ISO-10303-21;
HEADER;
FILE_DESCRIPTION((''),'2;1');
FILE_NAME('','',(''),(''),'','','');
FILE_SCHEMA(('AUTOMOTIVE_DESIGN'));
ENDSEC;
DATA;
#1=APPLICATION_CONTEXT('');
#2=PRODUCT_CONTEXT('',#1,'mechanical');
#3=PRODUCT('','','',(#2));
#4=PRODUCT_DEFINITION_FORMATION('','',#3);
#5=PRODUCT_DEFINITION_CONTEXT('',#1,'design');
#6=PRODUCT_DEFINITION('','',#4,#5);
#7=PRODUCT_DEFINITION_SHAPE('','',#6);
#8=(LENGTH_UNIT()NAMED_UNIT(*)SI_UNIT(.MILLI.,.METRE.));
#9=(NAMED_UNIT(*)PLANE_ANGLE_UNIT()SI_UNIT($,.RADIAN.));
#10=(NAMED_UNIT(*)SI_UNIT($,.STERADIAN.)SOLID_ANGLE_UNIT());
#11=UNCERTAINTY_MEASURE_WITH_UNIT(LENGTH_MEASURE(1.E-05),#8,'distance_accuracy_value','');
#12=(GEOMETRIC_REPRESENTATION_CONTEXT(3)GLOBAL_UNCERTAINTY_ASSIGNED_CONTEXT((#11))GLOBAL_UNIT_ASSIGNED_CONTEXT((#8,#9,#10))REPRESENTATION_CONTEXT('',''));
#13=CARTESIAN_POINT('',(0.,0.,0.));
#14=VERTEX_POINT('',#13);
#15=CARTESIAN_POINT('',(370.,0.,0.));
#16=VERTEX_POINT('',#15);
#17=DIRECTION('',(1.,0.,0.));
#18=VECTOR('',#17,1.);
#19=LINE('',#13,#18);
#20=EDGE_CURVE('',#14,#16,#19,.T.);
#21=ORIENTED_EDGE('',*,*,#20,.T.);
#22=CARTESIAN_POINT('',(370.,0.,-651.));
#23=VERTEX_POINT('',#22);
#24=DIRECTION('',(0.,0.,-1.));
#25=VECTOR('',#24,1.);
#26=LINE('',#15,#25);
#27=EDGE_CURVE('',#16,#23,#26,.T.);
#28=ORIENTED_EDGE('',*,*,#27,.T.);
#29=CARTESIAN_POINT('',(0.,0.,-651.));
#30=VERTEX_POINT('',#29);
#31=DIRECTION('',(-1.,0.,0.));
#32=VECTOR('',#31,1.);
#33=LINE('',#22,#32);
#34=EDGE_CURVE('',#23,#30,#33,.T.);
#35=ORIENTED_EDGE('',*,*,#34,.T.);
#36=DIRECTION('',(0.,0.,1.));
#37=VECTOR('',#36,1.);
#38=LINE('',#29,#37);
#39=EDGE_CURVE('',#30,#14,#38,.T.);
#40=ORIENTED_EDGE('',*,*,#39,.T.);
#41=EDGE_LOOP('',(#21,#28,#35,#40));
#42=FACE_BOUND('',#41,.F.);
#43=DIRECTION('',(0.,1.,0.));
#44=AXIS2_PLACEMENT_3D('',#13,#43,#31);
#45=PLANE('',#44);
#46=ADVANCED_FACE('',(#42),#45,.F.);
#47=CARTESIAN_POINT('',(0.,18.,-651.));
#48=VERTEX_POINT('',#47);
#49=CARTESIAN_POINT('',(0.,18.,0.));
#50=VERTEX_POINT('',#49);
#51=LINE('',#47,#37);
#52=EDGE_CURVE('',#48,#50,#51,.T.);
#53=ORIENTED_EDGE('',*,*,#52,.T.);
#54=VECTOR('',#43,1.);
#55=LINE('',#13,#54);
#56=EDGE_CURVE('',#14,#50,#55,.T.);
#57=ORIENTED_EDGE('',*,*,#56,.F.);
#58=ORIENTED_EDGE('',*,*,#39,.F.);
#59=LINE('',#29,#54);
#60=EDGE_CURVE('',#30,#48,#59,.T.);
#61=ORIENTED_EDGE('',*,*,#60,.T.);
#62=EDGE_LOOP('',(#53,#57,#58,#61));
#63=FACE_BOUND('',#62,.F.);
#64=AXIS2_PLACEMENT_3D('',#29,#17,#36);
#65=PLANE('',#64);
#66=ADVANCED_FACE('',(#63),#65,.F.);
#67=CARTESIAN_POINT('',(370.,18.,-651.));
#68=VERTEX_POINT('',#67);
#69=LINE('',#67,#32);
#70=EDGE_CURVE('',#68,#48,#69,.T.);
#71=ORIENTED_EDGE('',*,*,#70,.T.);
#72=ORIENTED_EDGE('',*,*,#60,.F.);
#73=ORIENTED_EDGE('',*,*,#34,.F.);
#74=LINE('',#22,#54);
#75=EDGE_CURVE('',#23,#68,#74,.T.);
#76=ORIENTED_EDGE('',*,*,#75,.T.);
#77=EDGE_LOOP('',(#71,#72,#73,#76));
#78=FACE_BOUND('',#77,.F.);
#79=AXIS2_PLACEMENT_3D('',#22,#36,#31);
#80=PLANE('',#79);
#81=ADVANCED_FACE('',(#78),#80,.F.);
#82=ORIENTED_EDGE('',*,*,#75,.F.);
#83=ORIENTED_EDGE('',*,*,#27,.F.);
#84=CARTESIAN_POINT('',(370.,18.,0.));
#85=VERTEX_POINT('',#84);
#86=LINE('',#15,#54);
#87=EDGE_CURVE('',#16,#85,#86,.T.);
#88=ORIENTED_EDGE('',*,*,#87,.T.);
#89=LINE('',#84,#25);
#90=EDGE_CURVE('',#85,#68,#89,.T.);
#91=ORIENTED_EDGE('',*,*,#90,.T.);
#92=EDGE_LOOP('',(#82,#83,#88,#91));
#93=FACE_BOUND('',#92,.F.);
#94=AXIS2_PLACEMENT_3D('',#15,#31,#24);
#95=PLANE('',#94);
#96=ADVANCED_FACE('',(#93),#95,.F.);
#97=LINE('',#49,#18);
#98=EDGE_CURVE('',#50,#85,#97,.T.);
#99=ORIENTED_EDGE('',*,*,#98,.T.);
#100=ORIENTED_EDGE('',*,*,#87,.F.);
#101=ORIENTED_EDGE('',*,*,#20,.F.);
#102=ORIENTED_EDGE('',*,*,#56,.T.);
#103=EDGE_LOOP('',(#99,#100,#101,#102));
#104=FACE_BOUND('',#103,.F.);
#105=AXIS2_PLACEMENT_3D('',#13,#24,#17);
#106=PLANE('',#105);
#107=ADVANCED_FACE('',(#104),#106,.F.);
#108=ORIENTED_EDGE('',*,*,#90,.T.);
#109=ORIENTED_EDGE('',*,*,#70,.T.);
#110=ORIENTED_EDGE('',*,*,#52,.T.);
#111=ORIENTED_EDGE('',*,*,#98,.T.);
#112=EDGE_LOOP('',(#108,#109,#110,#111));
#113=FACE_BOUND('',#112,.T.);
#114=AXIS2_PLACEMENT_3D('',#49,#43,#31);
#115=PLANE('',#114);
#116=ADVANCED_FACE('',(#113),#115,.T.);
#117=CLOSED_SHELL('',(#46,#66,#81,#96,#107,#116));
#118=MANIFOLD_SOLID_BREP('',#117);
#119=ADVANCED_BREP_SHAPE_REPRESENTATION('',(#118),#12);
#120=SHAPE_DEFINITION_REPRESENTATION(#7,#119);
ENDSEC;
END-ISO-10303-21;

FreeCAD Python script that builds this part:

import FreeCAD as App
import Part
import Sketcher

doc = App.newDocument("Part")
body = doc.addObject("PartDesign::Body", "Body")

# Sketch on XZ plane
sketch1 = body.newObject("Sketcher::SketchObject", "Sketch")
sketch1.AttachmentSupport = (doc.getObject("XZ_Plane"), [""])
sketch1.MapMode = "FlatFace"
sketch1.addGeometry(Part.LineSegment(App.Vector(0, -651, 0), App.Vector(0, 0, 0)), False)
sketch1.addGeometry(Part.LineSegment(App.Vector(0, 0, 0), App.Vector(370, 0, 0)), False)
sketch1.addGeometry(Part.LineSegment(App.Vector(370, 0, 0), App.Vector(370, -651, 0)), False)
sketch1.addGeometry(Part.LineSegment(App.Vector(370, -651, 0), App.Vector(0, -651, 0)), False)
sketch1.addConstraint(Sketcher.Constraint("Coincident", 0, 2, 1, 1))
sketch1.addConstraint(Sketcher.Constraint("Coincident", 1, 2, 2, 1))
sketch1.addConstraint(Sketcher.Constraint("Coincident", 2, 2, 3, 1))
sketch1.addConstraint(Sketcher.Constraint("Coincident", 3, 2, 0, 1))
sketch1.addConstraint(Sketcher.Constraint("Vertical", 0))
sketch1.addConstraint(Sketcher.Constraint("Horizontal", 1))
sketch1.addConstraint(Sketcher.Constraint("Vertical", 2))
sketch1.addConstraint(Sketcher.Constraint("Horizontal", 3))
sketch1.addConstraint(Sketcher.Constraint("Coincident", 0, 2, -1, 1))
sketch1.addConstraint(Sketcher.Constraint("DistanceX", 1, 1, 1, 2, 370.0))
sketch1.addConstraint(Sketcher.Constraint("DistanceY", 0, 1, 0, 2, 651.0))
pad1 = body.newObject("PartDesign::Pad", "Pad")
pad1.Profile = sketch1
pad1.Length = 18
pad1.Reversed = True

doc.recompute()
